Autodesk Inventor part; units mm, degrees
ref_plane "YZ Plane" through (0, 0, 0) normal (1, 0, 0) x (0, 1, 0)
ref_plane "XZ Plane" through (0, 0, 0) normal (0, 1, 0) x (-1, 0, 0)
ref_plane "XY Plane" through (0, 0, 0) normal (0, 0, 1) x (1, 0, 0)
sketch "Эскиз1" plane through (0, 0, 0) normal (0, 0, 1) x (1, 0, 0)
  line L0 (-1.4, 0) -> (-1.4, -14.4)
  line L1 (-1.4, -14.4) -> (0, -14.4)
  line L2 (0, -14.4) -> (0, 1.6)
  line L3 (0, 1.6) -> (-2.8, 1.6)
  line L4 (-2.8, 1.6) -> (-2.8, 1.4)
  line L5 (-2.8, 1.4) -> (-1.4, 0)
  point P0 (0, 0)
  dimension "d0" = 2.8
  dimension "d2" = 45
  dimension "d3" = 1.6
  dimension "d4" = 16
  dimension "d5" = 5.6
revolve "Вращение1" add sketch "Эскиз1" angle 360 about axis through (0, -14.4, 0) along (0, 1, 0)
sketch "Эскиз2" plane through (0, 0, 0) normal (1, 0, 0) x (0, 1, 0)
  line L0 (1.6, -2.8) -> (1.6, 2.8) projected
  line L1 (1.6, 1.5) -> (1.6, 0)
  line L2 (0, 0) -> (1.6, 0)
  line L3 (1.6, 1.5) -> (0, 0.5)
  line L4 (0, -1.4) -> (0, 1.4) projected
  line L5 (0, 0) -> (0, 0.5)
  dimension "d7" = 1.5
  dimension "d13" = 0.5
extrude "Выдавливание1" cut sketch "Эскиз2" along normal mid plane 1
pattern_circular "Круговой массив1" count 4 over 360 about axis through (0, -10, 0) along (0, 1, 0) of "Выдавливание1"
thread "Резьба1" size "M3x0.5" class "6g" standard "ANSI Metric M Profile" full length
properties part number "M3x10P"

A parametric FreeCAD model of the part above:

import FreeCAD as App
import Part
import Sketcher

V = App.Vector
Q = App.Units.Quantity

doc = App.newDocument("Part")
body = doc.addObject("PartDesign::Body", "Body")

# Sketch on XY plane
sketch1 = body.newObject("Sketcher::SketchObject", "Sketch")
sketch1.AttachmentSupport = (doc.getObject("XY_Plane"), [""])
sketch1.MapMode = "FlatFace"
sketch1.addGeometry([
    Part.LineSegment(V(-2.8, 1.4, 0), V(-1.4, 0, 0)),  # 0
    Part.LineSegment(V(-1.4, 0, 0), V(-1.4, -14.4, 0)),  # 1
    Part.LineSegment(V(-1.4, -14.4, 0), V(0, -14.4, 0)),  # 2
    Part.LineSegment(V(0, -14.4, 0), V(0, 1.6, 0)),  # 3
    Part.LineSegment(V(0, 1.6, 0), V(-2.8, 1.6, 0)),  # 4
    Part.LineSegment(V(-2.8, 1.6, 0), V(-2.8, 1.4, 0)),  # 5
], False)
sketch1.addConstraint([
    Sketcher.Constraint("Coincident", 0, 2, 1, 1),
    Sketcher.Constraint("Coincident", 1, 2, 2, 1),
    Sketcher.Constraint("Coincident", 2, 2, 3, 1),
    Sketcher.Constraint("Coincident", 3, 2, 4, 1),
    Sketcher.Constraint("Coincident", 4, 2, 5, 1),
    Sketcher.Constraint("Coincident", 5, 2, 0, 1),
    Sketcher.Constraint("Vertical", 1),
    Sketcher.Constraint("Horizontal", 2),
    Sketcher.Constraint("Vertical", 3),
    Sketcher.Constraint("Horizontal", 4),
    Sketcher.Constraint("Vertical", 5),
    Sketcher.Constraint("PointOnObject", 0, 2, -1),
    Sketcher.Constraint("PointOnObject", 2, 2, -2),
    Sketcher.Constraint("DistanceY", 3, 1, 3, 2, Q("16 mm")),
    Sketcher.Constraint("Angle", 0, Q("-45 deg")),
    Sketcher.Constraint("DistanceX", 4, 2, 4, 1, Q("2.8 mm")),
    Sketcher.Constraint("DistanceY", -1, 1, 3, 2, Q("1.6 mm")),
    Sketcher.Constraint("DistanceX", 2, 1, 2, 2, Q("1.4 mm")),
])
revolution = body.newObject("PartDesign::Revolution", "Revolution")
revolution.Profile = sketch1
revolution.ReferenceAxis = (sketch1, ["V_Axis"])
revolution.Angle = 360

# Sketch on YZ plane
sketch2 = body.newObject("Sketcher::SketchObject", "Sketch001")
sketch2.AttachmentSupport = (doc.getObject("YZ_Plane"), [""])
sketch2.MapMode = "FlatFace"
sketch2.addGeometry([
    Part.LineSegment(V(0, 0, 0), V(1.6, 0, 0)),
    Part.LineSegment(V(1.6, 0, 0), V(1.6, 1.5, 0)),
    Part.LineSegment(V(1.6, 1.5, 0), V(0, 0.5, 0)),
    Part.LineSegment(V(0, 0.5, 0), V(0, 0, 0)),
], False)
sketch2.addConstraint([
    Sketcher.Constraint("Coincident", 0, 2, 1, 1),
    Sketcher.Constraint("Coincident", 1, 2, 2, 1),
    Sketcher.Constraint("Coincident", 2, 2, 3, 1),
    Sketcher.Constraint("Coincident", 3, 2, 0, 1),
    Sketcher.Constraint("Horizontal", 0),
    Sketcher.Constraint("Vertical", 1),
    Sketcher.Constraint("Vertical", 3),
    Sketcher.Constraint("Coincident", 3, 2, -1, 1),
    Sketcher.Constraint("DistanceY", 1, 1, 1, 2, Q("1.5 mm")),
    Sketcher.Constraint("DistanceY", 3, 2, 3, 1, Q("0.5 mm")),
    Sketcher.Constraint("DistanceX", 0, 1, 0, 2, Q("1.6 mm")),
])
pocket1 = body.newObject("PartDesign::Pocket", "Pocket")
pocket1.Profile = sketch2
pocket1.Length = 1
pocket1.Midplane = True
doc.recompute()

polarpattern = body.newObject("PartDesign::PolarPattern", "PolarPattern")
polarpattern.Originals = [pocket1]
polarpattern.Axis = (doc.getObject("Y_Axis"), [""])
polarpattern.Angle = 360
polarpattern.Occurrences = 4
body.Tip = polarpattern

doc.recompute()
